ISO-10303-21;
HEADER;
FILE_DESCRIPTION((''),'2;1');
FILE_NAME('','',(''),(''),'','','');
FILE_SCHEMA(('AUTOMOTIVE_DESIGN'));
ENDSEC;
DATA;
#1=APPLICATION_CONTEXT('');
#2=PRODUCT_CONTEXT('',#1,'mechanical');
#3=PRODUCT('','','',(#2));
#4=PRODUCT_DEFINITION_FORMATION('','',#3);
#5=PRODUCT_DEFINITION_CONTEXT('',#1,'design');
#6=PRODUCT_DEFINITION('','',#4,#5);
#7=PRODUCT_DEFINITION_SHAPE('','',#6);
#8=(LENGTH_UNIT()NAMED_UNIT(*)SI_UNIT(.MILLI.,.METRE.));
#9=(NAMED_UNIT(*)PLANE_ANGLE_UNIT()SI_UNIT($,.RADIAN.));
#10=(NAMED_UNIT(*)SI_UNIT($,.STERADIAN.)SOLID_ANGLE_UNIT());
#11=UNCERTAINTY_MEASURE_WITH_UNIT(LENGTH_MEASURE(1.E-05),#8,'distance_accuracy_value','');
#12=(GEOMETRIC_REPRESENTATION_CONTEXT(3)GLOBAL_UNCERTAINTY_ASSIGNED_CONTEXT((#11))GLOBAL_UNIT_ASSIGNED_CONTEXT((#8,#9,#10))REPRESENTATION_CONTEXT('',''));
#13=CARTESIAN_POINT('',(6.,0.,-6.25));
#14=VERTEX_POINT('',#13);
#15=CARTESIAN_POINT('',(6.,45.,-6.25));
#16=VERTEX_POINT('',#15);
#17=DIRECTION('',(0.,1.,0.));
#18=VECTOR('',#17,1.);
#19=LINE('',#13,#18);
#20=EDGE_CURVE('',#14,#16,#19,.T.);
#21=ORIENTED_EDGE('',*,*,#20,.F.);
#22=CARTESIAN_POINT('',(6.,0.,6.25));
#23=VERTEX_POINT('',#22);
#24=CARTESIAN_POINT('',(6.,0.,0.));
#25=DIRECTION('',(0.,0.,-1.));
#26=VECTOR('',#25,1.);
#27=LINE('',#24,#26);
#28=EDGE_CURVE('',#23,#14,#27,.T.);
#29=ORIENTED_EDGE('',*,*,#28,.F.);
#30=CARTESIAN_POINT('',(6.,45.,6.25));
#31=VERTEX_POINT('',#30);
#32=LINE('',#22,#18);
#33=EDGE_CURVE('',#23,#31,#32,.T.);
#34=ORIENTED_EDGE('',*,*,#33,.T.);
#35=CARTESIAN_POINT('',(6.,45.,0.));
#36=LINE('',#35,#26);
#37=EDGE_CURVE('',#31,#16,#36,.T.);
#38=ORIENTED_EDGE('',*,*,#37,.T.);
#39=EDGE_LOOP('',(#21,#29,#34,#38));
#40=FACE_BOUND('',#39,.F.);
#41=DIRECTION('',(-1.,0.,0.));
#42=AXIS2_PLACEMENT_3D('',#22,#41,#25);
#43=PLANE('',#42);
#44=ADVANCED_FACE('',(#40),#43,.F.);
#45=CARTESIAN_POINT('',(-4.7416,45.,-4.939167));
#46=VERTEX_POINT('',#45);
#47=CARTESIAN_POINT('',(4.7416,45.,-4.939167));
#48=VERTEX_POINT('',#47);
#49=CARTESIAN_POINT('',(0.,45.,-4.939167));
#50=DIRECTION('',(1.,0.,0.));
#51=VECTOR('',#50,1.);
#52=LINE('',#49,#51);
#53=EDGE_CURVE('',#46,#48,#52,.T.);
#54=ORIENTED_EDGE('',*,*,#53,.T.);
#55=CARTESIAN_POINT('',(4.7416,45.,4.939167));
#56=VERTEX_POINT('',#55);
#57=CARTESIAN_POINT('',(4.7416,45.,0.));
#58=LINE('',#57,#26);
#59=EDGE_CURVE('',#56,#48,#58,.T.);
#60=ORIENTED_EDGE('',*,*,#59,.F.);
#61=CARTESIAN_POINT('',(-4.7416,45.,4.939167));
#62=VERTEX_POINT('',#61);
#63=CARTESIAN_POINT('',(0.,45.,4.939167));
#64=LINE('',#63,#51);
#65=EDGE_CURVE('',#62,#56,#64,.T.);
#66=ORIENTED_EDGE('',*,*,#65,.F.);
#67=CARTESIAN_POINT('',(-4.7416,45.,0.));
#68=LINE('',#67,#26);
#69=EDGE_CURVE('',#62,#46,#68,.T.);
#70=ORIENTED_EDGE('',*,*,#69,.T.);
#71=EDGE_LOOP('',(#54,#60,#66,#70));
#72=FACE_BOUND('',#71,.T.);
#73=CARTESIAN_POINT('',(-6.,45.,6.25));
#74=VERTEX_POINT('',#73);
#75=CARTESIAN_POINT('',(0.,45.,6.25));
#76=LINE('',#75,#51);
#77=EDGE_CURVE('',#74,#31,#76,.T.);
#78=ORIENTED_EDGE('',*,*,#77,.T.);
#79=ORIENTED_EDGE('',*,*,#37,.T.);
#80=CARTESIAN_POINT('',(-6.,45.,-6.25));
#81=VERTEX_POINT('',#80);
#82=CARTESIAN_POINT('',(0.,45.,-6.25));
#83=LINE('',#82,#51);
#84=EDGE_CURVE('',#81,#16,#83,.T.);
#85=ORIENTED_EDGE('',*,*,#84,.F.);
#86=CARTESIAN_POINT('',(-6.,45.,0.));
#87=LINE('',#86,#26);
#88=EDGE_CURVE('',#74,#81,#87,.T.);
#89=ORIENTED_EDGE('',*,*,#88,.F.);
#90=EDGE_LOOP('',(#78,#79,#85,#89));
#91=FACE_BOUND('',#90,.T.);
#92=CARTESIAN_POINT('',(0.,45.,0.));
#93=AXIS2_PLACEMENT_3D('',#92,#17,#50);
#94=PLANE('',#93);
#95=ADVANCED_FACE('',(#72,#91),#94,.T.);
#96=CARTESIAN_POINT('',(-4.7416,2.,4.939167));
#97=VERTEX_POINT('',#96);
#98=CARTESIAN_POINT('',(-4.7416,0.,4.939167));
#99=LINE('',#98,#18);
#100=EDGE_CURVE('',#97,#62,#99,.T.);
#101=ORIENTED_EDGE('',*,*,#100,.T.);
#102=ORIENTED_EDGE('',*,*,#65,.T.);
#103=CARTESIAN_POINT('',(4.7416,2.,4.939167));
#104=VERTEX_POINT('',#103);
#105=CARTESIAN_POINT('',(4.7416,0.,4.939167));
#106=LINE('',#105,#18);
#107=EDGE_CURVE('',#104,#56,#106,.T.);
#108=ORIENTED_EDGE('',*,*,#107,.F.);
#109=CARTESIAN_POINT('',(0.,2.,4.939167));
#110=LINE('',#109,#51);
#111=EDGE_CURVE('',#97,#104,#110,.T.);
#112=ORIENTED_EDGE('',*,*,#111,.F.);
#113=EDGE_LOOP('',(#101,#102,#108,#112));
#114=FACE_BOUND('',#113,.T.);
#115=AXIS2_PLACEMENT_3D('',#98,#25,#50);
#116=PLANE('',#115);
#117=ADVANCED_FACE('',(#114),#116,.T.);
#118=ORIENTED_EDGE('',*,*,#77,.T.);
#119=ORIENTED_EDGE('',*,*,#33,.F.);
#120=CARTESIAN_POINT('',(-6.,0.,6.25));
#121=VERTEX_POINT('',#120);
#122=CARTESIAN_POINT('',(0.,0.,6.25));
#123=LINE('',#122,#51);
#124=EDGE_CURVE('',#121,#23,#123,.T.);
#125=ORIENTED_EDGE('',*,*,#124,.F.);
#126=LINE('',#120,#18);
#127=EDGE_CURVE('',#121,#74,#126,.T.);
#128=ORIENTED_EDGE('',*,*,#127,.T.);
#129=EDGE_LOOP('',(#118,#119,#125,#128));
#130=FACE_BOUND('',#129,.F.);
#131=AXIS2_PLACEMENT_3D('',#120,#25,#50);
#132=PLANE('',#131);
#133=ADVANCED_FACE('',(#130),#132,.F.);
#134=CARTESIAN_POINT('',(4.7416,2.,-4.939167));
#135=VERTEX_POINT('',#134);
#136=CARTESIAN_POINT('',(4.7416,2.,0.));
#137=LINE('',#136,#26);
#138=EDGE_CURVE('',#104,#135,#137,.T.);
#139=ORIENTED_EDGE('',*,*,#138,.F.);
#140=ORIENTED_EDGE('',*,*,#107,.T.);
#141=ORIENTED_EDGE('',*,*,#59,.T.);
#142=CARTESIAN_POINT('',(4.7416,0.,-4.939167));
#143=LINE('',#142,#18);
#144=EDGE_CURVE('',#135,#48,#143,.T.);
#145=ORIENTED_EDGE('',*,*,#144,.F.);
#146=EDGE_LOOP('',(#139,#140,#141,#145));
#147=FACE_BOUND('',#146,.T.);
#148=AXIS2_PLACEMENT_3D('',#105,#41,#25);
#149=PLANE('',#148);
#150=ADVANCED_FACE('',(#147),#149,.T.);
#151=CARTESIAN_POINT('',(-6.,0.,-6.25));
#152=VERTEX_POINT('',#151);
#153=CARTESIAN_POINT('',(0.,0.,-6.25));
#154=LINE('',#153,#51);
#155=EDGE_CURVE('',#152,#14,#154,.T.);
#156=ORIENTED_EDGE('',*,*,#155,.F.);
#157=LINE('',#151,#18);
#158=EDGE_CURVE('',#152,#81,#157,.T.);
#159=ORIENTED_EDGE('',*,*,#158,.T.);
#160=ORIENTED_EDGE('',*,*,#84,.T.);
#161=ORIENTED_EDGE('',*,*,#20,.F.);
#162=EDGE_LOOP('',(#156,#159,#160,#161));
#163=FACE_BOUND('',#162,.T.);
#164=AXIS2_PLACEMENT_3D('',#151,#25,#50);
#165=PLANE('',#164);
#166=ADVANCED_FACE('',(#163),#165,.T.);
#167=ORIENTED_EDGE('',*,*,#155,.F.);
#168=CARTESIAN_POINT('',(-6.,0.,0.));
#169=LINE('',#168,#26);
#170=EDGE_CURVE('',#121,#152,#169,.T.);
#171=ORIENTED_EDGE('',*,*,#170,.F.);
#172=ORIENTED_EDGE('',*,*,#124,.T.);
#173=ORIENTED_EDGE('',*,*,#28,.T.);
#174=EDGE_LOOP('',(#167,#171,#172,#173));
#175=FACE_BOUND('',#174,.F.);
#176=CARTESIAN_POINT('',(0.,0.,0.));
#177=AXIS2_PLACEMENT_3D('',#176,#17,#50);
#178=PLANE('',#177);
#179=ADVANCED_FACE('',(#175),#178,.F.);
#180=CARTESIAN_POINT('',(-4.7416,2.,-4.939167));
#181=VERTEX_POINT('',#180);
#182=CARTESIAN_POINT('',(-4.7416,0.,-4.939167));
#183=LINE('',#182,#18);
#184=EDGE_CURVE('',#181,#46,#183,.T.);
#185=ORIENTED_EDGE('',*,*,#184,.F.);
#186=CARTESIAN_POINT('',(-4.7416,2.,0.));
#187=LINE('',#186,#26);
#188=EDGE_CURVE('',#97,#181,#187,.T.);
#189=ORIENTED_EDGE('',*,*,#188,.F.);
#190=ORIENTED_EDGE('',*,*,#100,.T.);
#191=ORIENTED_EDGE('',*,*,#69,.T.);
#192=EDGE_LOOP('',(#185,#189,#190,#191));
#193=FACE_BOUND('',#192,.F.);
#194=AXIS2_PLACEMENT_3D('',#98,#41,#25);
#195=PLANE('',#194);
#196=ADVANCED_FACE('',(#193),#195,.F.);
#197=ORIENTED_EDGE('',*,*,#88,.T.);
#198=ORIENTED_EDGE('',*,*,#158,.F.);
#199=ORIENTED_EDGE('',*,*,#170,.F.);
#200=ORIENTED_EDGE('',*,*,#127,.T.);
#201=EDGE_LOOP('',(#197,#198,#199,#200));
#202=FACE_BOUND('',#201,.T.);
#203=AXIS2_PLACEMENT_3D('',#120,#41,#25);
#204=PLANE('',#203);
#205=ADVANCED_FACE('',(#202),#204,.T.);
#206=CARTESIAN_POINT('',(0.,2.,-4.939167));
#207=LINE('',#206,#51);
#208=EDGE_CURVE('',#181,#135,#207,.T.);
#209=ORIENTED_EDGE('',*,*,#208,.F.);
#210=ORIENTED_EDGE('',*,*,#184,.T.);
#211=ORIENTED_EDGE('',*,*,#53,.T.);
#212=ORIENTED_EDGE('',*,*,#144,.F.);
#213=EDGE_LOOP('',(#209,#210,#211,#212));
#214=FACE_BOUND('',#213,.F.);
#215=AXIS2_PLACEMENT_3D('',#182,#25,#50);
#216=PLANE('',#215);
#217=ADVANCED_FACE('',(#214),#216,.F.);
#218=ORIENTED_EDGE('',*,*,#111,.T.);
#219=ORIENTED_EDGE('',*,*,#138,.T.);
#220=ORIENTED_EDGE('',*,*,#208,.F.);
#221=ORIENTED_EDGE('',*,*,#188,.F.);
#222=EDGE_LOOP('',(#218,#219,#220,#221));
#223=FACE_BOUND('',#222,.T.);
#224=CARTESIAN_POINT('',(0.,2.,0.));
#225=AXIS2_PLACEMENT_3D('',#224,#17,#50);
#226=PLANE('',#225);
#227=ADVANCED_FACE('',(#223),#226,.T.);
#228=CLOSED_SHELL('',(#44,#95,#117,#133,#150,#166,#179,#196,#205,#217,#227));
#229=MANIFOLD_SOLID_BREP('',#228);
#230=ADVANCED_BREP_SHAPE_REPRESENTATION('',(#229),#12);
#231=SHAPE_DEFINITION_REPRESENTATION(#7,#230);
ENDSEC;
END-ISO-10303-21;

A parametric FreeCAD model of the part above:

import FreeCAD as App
import Part
import Sketcher
from FreeCAD import Vector


def add_polygon(sketch, points):
    """Adds a closed chain of lines whose ends are joined by coincident constraints."""
    first, n = sketch.GeometryCount, len(points)
    for a, b in zip(points, points[1:] + points[:1]):
        sketch.addGeometry(Part.LineSegment(App.Vector(*a, 0), App.Vector(*b, 0)), False)
    for i in range(n):
        sketch.addConstraint(Sketcher.Constraint("Coincident", first + i, 2, first + (i + 1) % n, 1))

doc = App.newDocument("Part")
body = doc.addObject("PartDesign::Body", "Body")

sketch1 = body.newObject("Sketcher::SketchObject", "Sketch")
sketch1.AttachmentSupport = (doc.getObject("XZ_Plane"), [""])
sketch1.MapMode = "FlatFace"
add_polygon(sketch1, [(-6, -6.25), (-6, 6.25), (6, 6.25), (6, -6.25)])
add_polygon(sketch1, [(4.7416, 4.939167), (-4.7416, 4.939167), (-4.7416, -4.939167), (4.7416, -4.939167)])
sketch1.addConstraint(Sketcher.Constraint("Vertical", 0))
sketch1.addConstraint(Sketcher.Constraint("Horizontal", 1))
sketch1.addConstraint(Sketcher.Constraint("Vertical", 2))
sketch1.addConstraint(Sketcher.Constraint("Horizontal", 3))
sketch1.addConstraint(Sketcher.Constraint("Horizontal", 4))
sketch1.addConstraint(Sketcher.Constraint("Vertical", 5))
sketch1.addConstraint(Sketcher.Constraint("Horizontal", 6))
sketch1.addConstraint(Sketcher.Constraint("Vertical", 7))
sketch1.addConstraint(Sketcher.Constraint("Symmetric", 0, 2, 2, 2, -1, 1))
sketch1.addConstraint(Sketcher.Constraint("Symmetric", 4, 2, 6, 2, -1, 1))
sketch1.addConstraint(Sketcher.Constraint("DistanceX", 1, 1, 1, 2, 12.0))
sketch1.addConstraint(Sketcher.Constraint("DistanceY", 0, 1, 0, 2, 12.5))
sketch1.addConstraint(Sketcher.Constraint("DistanceX", 4, 2, 4, 1, 9.483201))
sketch1.addConstraint(Sketcher.Constraint("DistanceY", 5, 2, 5, 1, 9.878334))
pad1 = body.newObject("PartDesign::Pad", "Pad")
pad1.Profile = sketch1
pad1.Length = 45
pad1.Reversed = True

sketch2 = body.newObject("Sketcher::SketchObject", "Sketch001")
sketch2.AttachmentSupport = (doc.getObject("XZ_Plane"), [""])
sketch2.MapMode = "FlatFace"
add_polygon(sketch2, [(-4.7416, -4.939167), (-4.7416, 4.939167), (4.7416, 4.939167), (4.7416, -4.939167)])
sketch2.addConstraint(Sketcher.Constraint("Vertical", 0))
sketch2.addConstraint(Sketcher.Constraint("Horizontal", 1))
sketch2.addConstraint(Sketcher.Constraint("Vertical", 2))
sketch2.addConstraint(Sketcher.Constraint("Horizontal", 3))
sketch2.addConstraint(Sketcher.Constraint("Symmetric", 0, 2, 2, 2, -1, 1))
sketch2.addConstraint(Sketcher.Constraint("DistanceX", 1, 1, 1, 2, 9.483201))
sketch2.addConstraint(Sketcher.Constraint("DistanceY", 0, 1, 0, 2, 9.878334))
pad2 = body.newObject("PartDesign::Pad", "Pad001")
pad2.Profile = sketch2
pad2.Length = 2
pad2.Reversed = True

doc.recompute()
